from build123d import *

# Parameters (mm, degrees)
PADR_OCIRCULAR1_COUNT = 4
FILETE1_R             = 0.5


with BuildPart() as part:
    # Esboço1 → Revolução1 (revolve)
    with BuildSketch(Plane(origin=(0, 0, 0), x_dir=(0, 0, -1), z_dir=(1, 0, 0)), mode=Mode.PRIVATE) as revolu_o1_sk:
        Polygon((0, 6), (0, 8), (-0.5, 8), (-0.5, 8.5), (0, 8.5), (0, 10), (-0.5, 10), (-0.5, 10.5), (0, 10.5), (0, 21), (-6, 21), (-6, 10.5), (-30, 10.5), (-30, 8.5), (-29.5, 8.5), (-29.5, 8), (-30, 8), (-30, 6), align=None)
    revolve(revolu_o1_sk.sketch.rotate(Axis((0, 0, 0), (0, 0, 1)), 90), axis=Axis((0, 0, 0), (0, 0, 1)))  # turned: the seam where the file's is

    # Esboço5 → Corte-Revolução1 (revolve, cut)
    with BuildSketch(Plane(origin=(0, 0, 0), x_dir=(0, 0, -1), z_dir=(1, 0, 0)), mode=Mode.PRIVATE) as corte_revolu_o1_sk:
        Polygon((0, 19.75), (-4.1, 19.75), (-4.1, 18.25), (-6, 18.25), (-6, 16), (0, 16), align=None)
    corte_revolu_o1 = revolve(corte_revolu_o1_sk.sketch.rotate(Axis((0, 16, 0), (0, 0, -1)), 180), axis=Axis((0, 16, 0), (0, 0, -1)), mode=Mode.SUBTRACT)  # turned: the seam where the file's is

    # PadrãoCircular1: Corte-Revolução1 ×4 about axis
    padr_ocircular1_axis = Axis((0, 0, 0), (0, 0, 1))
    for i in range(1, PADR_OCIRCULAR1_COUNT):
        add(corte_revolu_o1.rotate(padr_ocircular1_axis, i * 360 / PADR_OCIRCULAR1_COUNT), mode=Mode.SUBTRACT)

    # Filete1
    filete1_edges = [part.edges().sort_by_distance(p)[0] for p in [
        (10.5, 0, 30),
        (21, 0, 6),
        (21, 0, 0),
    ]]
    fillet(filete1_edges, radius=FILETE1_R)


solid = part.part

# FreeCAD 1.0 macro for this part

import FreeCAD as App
import Part
import Sketcher

V = App.Vector


def edges_at(feature, points):
    """Names of the edges that pass closest to the given points."""
    edges = feature.Shape.Edges
    near = lambda p: min(range(len(edges)), key=lambda i: edges[i].distToShape(Part.Vertex(*p))[0])
    return sorted({f"Edge{near(p) + 1}" for p in points})


def add_polygon(sketch, points):
    """Adds a closed chain of lines whose ends are joined by coincident constraints."""
    first, n = sketch.GeometryCount, len(points)
    for a, b in zip(points, points[1:] + points[:1]):
        sketch.addGeometry(Part.LineSegment(App.Vector(*a, 0), App.Vector(*b, 0)), False)
    for i in range(n):
        sketch.addConstraint(Sketcher.Constraint("Coincident", first + i, 2, first + (i + 1) % n, 1))

doc = App.newDocument("Part")
params = doc.addObject("Spreadsheet::Sheet", "Params")
for row, (alias, value) in enumerate([
    ("sketch1_width", "2 mm"),
    ("sketch1_height", "6 mm"),
    ("sketch1_height2", "24 mm"),
    ("sketch1_width2", "0.5 mm"),
    ("sketch1_width3", "10.5 mm"),
    ("revolution_angle", "360 deg"),
    ("sketch2_height", "6 mm"),
    ("sketch2_width", "1.5 mm"),
    ("sketch2_height2", "4.1 mm"),
    ("sketch2_width2", "2.25 mm"),
    ("groove_angle", "360 deg"),
    ("fillet_radius", "0.5 mm"),
], start=1):
    params.set(f"A{row}", alias)
    params.set(f"B{row}", "=" + value)
    params.setAlias(f"B{row}", alias)

body = doc.addObject("PartDesign::Body", "Body")

# Sketch on YZ plane
sketch1 = body.newObject("Sketcher::SketchObject", "Sketch")
sketch1.AttachmentSupport = (doc.getObject("YZ_Plane"), [""])
sketch1.MapMode = "FlatFace"
add_polygon(sketch1, [(6, 0), (8, 0), (8, 0.5), (8.5, 0.5), (8.5, 0), (10, 0), (10, 0.5), (10.5, 0.5), (10.5, 0), (21, 0), (21, 6), (10.5, 6), (10.5, 30), (8.5, 30), (8.5, 29.5), (8, 29.5), (8, 30), (6, 30)])  # lines 0-17
sketch1.addConstraint([
    Sketcher.Constraint("Horizontal", 0),
    Sketcher.Constraint("Vertical", 1),
    Sketcher.Constraint("Horizontal", 2),
    Sketcher.Constraint("Vertical", 3),
    Sketcher.Constraint("Horizontal", 4),
    Sketcher.Constraint("Vertical", 5),
    Sketcher.Constraint("Horizontal", 6),
    Sketcher.Constraint("Vertical", 7),
    Sketcher.Constraint("Horizontal", 8),
    Sketcher.Constraint("Vertical", 9),
    Sketcher.Constraint("Horizontal", 10),
    Sketcher.Constraint("Vertical", 11),
    Sketcher.Constraint("Horizontal", 12),
    Sketcher.Constraint("Vertical", 13),
    Sketcher.Constraint("Horizontal", 14),
    Sketcher.Constraint("Vertical", 15),
    Sketcher.Constraint("Horizontal", 16),
    Sketcher.Constraint("Vertical", 17),
    Sketcher.Constraint("PointOnObject", 0, 2, -1),
    Sketcher.Constraint("PointOnObject", 3, 2, -1),
    Sketcher.Constraint("PointOnObject", 7, 2, -1),
    Sketcher.Constraint("Horizontal", 2, 2, 5, 2),
    Sketcher.Constraint("Horizontal", 12, 2, 15, 2),
    Sketcher.Constraint("Vertical", 7, 2, 10, 2),
    Sketcher.Constraint("Vertical", 3, 2, 12, 2),
    Sketcher.Constraint("Vertical", 1, 2, 14, 2),
    Sketcher.Constraint("Equal", 2, 6),
    Sketcher.Constraint("Equal", 0, 12),
    Sketcher.Constraint("Equal", 14, 1),
    Sketcher.Constraint("Equal", 7, 13),
    Sketcher.Constraint("DistanceX", 0, 1, 0, 2, 2.0),
    Sketcher.Constraint("DistanceY", 9, 1, 9, 2, 6.0),
    Sketcher.Constraint("DistanceY", 11, 1, 11, 2, 24.0),
    Sketcher.Constraint("DistanceX", 2, 1, 2, 2, 0.5),
    Sketcher.Constraint("DistanceX", 8, 1, 8, 2, 10.5),
    Sketcher.Constraint("DistanceX", -1, 1, 0, 2, 8.0),
])
sketch1.setExpression("Constraints[48]", "Params.sketch1_width")
sketch1.setExpression("Constraints[49]", "Params.sketch1_height")
sketch1.setExpression("Constraints[50]", "Params.sketch1_height2")
sketch1.setExpression("Constraints[51]", "Params.sketch1_width2")
sketch1.setExpression("Constraints[52]", "Params.sketch1_width3")
revolution = body.newObject("PartDesign::Revolution", "Revolution")
revolution.Profile = sketch1
revolution.ReferenceAxis = (sketch1, ["V_Axis"])
revolution.setExpression("Angle", "Params.revolution_angle")

# Sketch on YZ plane
sketch2 = body.newObject("Sketcher::SketchObject", "Sketch001")
sketch2.AttachmentSupport = (doc.getObject("YZ_Plane"), [""])
sketch2.MapMode = "FlatFace"
add_polygon(sketch2, [(19.75, 0), (19.75, 4.1), (18.25, 4.1), (18.25, 6), (16, 6), (16, 0)])  # lines 0-5
sketch2.addGeometry(Part.LineSegment(V(16, 6, 0), V(16, 0, 0)), True)  # axis
sketch2.addConstraint([
    Sketcher.Constraint("Vertical", 0),
    Sketcher.Constraint("Horizontal", 1),
    Sketcher.Constraint("Vertical", 2),
    Sketcher.Constraint("Horizontal", 3),
    Sketcher.Constraint("Vertical", 4),
    Sketcher.Constraint("Horizontal", 5),
    Sketcher.Constraint("Vertical", 6),
    Sketcher.Constraint("Coincident", 6, 1, 3, 2),
    Sketcher.Constraint("PointOnObject", 4, 2, -1),
    Sketcher.Constraint("PointOnObject", 6, 2, -1),
    Sketcher.Constraint("DistanceY", 4, 2, 4, 1, 6.0),
    Sketcher.Constraint("DistanceX", 1, 2, 1, 1, 1.5),
    Sketcher.Constraint("DistanceY", 0, 1, 0, 2, 4.1),
    Sketcher.Constraint("DistanceX", -1, 1, 3, 2, 16.0),
    Sketcher.Constraint("DistanceX", 3, 2, 3, 1, 2.25),
])
sketch2.setExpression("Constraints[16]", "Params.sketch2_height")
sketch2.setExpression("Constraints[17]", "Params.sketch2_width")
sketch2.setExpression("Constraints[18]", "Params.sketch2_height2")
sketch2.setExpression("Constraints[20]", "Params.sketch2_width2")
groove = body.newObject("PartDesign::Groove", "Groove")
groove.Profile = sketch2
groove.ReferenceAxis = (sketch2, ["Axis0"])
groove.setExpression("Angle", "Params.groove_angle")
doc.recompute()

polarpattern = body.newObject("PartDesign::PolarPattern", "PolarPattern")
polarpattern.Originals = [groove]
polarpattern.Axis = (doc.getObject("Z_Axis"), [""])
polarpattern.Angle = 360
polarpattern.Occurrences = 4
body.Tip = polarpattern
doc.recompute()

fillet = body.newObject("PartDesign::Fillet", "Fillet")
fillet.Base = (polarpattern, edges_at(polarpattern, [(10.5, 0, 30), (21, 0, 6), (21, 0, 0)]))
fillet.setExpression("Radius", "Params.fillet_radius")

doc.recompute()
